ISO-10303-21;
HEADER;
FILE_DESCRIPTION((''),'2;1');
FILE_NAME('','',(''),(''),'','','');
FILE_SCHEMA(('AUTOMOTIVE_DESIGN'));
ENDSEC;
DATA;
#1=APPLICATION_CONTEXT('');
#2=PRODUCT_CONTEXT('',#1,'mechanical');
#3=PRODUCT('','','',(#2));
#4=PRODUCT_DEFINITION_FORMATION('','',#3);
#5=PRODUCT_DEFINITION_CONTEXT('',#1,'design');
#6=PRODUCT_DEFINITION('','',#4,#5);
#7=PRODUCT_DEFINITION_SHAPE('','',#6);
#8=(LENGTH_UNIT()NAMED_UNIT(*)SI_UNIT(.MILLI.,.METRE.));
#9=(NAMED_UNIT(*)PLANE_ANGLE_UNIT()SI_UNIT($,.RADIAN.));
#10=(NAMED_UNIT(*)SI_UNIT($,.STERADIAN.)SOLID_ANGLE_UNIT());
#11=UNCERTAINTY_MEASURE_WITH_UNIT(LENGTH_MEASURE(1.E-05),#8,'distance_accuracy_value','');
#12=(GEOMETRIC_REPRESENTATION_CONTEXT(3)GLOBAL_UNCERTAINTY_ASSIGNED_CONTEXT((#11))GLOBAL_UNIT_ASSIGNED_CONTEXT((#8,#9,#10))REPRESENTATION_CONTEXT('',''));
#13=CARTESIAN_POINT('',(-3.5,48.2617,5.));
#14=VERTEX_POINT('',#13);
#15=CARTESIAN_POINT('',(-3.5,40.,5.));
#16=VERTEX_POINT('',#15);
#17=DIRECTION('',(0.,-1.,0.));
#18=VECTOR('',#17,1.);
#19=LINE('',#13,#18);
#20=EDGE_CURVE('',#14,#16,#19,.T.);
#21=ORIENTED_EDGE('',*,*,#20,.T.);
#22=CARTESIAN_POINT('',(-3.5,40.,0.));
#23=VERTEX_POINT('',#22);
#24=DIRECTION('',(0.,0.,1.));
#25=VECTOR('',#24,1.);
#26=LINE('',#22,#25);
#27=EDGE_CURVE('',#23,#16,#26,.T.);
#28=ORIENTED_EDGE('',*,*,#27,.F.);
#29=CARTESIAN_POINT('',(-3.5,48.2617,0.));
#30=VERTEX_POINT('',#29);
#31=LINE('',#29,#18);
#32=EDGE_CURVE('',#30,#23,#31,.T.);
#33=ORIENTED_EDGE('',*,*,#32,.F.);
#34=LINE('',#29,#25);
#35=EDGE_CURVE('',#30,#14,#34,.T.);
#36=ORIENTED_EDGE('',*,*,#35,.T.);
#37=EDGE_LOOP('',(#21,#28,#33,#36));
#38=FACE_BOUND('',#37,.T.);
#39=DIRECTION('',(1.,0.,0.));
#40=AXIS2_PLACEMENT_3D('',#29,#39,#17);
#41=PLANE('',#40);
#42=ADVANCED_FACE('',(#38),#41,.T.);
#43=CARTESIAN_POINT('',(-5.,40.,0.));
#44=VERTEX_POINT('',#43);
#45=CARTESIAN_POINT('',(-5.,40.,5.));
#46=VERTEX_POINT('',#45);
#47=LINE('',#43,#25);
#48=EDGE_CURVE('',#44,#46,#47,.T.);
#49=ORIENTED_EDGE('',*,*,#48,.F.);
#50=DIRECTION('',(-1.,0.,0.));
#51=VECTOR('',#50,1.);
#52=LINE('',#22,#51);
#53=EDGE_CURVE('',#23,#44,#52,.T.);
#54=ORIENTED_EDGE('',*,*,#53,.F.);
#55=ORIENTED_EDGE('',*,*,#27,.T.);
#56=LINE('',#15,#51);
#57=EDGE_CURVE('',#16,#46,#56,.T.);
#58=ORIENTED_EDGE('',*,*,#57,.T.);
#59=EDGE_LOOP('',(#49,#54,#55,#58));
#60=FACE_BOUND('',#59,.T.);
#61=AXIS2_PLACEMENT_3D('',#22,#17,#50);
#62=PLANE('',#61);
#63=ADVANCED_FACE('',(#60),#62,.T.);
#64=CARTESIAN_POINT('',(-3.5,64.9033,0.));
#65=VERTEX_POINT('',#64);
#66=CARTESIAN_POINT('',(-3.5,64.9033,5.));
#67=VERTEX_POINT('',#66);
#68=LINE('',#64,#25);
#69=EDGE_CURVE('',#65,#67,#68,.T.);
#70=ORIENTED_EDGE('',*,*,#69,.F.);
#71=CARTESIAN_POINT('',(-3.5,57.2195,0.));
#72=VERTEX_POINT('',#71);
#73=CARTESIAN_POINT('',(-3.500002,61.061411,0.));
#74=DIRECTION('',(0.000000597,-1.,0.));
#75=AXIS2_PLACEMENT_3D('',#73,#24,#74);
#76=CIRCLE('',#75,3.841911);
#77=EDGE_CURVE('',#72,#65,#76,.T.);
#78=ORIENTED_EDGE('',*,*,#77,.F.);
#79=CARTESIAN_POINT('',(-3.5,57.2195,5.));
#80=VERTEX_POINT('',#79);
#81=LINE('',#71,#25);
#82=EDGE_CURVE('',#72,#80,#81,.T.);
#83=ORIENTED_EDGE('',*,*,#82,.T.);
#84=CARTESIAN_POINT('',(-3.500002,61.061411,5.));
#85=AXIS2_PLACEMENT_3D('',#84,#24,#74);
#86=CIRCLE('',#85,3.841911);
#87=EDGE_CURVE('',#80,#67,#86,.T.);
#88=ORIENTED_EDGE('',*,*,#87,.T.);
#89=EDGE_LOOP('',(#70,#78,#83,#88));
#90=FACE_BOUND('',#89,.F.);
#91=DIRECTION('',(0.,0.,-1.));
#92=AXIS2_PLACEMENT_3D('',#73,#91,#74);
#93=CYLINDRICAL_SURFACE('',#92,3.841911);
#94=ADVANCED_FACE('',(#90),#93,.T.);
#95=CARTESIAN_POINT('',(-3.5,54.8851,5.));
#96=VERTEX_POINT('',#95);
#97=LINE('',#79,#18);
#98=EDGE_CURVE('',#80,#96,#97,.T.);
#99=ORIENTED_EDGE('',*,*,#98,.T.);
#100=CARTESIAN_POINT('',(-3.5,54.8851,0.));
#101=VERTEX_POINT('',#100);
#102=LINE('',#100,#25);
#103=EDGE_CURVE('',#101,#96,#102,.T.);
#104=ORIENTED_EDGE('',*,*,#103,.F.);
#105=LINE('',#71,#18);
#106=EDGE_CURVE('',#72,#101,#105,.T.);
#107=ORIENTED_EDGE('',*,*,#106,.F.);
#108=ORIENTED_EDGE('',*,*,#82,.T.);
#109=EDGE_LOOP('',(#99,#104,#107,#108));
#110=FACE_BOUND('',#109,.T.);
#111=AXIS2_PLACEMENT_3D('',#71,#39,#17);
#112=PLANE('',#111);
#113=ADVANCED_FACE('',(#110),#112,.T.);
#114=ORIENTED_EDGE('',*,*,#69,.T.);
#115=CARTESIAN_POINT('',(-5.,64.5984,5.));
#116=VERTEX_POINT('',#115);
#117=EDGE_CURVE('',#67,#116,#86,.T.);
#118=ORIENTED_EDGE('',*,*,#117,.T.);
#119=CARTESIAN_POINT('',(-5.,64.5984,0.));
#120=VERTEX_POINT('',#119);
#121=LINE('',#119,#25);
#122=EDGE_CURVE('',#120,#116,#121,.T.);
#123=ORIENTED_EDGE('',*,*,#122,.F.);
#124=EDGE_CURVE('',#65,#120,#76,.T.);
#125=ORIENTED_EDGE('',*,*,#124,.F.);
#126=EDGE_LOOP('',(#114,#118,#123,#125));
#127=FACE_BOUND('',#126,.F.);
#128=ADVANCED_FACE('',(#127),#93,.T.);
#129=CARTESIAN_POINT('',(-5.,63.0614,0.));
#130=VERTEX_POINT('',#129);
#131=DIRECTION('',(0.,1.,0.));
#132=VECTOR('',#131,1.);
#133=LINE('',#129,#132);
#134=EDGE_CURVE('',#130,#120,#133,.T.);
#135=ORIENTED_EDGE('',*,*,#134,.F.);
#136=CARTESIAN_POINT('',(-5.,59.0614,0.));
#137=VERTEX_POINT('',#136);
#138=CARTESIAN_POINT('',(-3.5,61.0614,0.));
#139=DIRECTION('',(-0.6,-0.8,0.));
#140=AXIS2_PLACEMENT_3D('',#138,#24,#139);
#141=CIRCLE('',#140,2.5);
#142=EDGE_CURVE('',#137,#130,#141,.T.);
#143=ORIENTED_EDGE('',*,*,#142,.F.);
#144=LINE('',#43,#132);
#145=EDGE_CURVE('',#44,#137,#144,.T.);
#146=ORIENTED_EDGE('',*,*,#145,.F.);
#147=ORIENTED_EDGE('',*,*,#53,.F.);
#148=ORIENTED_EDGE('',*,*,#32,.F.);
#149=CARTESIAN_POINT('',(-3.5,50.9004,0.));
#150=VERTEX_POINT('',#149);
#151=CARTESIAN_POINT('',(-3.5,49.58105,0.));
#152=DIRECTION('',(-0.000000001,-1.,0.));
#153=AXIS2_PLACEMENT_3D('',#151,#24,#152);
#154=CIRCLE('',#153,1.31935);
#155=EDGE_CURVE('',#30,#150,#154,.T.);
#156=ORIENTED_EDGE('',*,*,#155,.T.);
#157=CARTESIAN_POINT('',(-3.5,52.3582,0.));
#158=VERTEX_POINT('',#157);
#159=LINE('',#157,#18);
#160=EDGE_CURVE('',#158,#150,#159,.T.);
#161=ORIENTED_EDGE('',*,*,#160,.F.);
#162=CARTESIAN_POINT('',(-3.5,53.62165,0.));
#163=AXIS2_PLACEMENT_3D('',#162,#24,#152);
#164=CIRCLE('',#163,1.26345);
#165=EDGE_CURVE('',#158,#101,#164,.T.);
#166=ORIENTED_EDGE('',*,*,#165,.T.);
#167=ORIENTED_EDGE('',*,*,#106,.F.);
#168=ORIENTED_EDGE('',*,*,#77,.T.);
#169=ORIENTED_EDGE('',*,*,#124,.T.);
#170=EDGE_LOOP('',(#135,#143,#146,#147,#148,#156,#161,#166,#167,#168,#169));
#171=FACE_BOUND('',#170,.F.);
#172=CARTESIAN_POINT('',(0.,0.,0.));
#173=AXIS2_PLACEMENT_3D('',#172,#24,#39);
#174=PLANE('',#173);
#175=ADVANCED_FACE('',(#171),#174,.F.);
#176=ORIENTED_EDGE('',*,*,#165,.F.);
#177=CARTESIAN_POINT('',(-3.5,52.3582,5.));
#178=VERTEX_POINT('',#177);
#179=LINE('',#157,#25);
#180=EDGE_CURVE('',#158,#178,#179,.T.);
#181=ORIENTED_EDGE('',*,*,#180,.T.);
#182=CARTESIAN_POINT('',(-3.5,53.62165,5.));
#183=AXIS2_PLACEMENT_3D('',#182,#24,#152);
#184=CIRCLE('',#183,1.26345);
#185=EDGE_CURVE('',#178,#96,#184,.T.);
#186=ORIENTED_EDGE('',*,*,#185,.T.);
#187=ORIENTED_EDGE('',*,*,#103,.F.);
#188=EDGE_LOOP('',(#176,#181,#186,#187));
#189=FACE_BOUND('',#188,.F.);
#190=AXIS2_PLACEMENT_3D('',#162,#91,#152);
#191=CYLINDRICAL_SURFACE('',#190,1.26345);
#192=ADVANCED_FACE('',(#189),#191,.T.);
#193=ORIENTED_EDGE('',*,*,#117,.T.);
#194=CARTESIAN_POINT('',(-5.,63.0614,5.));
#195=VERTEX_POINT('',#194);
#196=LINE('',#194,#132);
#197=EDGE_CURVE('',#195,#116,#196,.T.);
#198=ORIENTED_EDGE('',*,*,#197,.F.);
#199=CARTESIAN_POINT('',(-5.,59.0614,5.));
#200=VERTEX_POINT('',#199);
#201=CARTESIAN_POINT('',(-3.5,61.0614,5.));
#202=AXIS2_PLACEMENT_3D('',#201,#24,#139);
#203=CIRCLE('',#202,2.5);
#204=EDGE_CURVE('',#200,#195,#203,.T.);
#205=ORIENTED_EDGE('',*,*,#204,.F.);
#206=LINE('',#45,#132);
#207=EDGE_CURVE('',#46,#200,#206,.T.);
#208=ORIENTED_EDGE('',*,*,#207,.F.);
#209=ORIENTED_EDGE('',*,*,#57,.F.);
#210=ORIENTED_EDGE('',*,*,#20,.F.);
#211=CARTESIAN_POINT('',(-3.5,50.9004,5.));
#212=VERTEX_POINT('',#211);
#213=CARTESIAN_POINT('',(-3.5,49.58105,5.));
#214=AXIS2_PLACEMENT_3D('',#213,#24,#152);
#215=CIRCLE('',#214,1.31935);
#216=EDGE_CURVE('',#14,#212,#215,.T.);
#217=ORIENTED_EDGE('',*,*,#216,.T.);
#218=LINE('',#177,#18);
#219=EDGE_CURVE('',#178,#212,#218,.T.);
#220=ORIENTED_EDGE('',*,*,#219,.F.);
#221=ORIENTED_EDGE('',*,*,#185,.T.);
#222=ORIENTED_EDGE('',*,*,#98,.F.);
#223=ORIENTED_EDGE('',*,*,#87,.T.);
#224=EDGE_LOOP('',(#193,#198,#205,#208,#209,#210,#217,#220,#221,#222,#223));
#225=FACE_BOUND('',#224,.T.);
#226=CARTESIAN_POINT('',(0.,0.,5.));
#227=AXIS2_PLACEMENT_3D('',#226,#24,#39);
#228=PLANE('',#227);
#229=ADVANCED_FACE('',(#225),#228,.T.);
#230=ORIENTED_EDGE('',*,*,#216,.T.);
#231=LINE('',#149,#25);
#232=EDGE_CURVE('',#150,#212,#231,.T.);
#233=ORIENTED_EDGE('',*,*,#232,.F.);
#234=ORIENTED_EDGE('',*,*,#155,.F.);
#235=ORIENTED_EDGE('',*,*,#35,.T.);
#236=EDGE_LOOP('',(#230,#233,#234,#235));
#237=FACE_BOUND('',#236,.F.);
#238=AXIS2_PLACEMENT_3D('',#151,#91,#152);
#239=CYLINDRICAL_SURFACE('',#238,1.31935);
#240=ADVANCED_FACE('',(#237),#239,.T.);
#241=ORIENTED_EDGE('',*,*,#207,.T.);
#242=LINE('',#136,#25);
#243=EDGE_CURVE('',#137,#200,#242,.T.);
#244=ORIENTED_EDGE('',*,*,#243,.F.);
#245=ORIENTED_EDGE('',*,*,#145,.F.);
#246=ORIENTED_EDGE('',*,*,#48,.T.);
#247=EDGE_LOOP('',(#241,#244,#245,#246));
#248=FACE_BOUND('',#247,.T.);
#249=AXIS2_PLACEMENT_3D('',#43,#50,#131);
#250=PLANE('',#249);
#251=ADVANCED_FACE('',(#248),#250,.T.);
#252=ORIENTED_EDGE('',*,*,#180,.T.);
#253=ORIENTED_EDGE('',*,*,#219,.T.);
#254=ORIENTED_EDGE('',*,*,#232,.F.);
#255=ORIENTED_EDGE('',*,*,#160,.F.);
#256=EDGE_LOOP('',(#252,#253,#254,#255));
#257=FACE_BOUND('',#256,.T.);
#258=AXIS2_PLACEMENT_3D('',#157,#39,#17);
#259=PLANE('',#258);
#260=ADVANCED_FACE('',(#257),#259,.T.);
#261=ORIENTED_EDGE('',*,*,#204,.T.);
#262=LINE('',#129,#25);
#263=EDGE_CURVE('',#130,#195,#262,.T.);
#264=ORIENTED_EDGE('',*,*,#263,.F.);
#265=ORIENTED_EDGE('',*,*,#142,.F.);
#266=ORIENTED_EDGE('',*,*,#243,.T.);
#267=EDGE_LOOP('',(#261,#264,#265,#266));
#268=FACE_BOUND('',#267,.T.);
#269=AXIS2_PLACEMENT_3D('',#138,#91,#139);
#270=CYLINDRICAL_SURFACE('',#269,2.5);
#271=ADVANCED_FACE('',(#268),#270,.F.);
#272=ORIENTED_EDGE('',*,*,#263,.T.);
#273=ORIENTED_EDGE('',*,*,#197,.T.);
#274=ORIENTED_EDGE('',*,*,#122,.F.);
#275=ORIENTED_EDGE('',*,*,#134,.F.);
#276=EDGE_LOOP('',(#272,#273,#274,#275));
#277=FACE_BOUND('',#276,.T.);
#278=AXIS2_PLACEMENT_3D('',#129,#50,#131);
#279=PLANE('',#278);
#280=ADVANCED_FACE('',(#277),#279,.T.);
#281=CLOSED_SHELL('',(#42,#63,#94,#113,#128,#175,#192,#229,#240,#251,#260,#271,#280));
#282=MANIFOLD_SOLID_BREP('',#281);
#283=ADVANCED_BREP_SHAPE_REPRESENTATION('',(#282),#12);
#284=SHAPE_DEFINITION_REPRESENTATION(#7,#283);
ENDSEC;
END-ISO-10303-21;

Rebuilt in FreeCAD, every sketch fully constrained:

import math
import FreeCAD as App
import Part
import Sketcher

V = App.Vector
Q = App.Units.Quantity

doc = App.newDocument("Part")
params = doc.addObject("Spreadsheet::Sheet", "Params")
for row, (alias, value) in enumerate([
    ("sketch1_radius", "2.5 mm"),
    ("sketch1_width", "1.5 mm"),
    ("pad1_length", "5 mm"),
], start=1):
    params.set(f"A{row}", alias)
    params.set(f"B{row}", "=" + value)
    params.setAlias(f"B{row}", alias)

body = doc.addObject("PartDesign::Body", "Body")

# Sketch on XY plane
sketch1 = body.newObject("Sketcher::SketchObject", "Sketch")
sketch1.AttachmentSupport = (doc.getObject("XY_Plane"), [""])
sketch1.MapMode = "FlatFace"
sketch1.addGeometry(Part.LineSegment(V(-5, 40, 0), V(-3.5, 40, 0)), False)
sketch1.addGeometry(Part.LineSegment(V(-3.5, 40, 0), V(-3.5, 48.3, 0)), False)
sketch1.addGeometry(Part.ArcOfCircle(Part.Circle(V(-3.5, 49.6, 0), V(0, 0, 1), 1.3), math.radians(-90), math.radians(90)), False)
sketch1.addGeometry(Part.LineSegment(V(-3.5, 50.9, 0), V(-3.5, 52.4, 0)), False)
sketch1.addGeometry(Part.ArcOfCircle(Part.Circle(V(-3.5, 53.6, 0), V(0, 0, 1), 1.3), math.radians(-90), math.radians(90)), False)
sketch1.addGeometry(Part.LineSegment(V(-3.5, 54.9, 0), V(-3.5, 57.2, 0)), False)
sketch1.addGeometry(Part.ArcOfCircle(Part.Circle(V(-3.5, 61.1, 0), V(0, 0, 1), 3.8), math.radians(-90), math.radians(113)), False)
sketch1.addGeometry(Part.LineSegment(V(-5, 64.6, 0), V(-5, 63.1, 0)), False)
sketch1.addGeometry(Part.ArcOfCircle(Part.Circle(V(-3.5, 61.1, 0), V(0, 0, 1), 2.5), math.radians(-127), math.radians(127)), False)
sketch1.addGeometry(Part.LineSegment(V(-5, 59.1, 0), V(-5, 40, 0)), False)
sketch1.addConstraint(Sketcher.Constraint("Coincident", 0, 2, 1, 1))
sketch1.addConstraint(Sketcher.Constraint("Coincident", 1, 2, 2, 1))
sketch1.addConstraint(Sketcher.Constraint("Coincident", 2, 2, 3, 1))
sketch1.addConstraint(Sketcher.Constraint("Coincident", 3, 2, 4, 1))
sketch1.addConstraint(Sketcher.Constraint("Coincident", 4, 2, 5, 1))
sketch1.addConstraint(Sketcher.Constraint("Coincident", 5, 2, 6, 1))
sketch1.addConstraint(Sketcher.Constraint("Coincident", 6, 2, 7, 1))
sketch1.addConstraint(Sketcher.Constraint("Coincident", 7, 2, 8, 2))
sketch1.addConstraint(Sketcher.Constraint("Coincident", 8, 1, 9, 1))
sketch1.addConstraint(Sketcher.Constraint("Coincident", 9, 2, 0, 1))
sketch1.addConstraint(Sketcher.Constraint("Horizontal", 0))
sketch1.addConstraint(Sketcher.Constraint("Vertical", 1))
sketch1.addConstraint(Sketcher.Constraint("Vertical", 3))
sketch1.addConstraint(Sketcher.Constraint("Vertical", 5))
sketch1.addConstraint(Sketcher.Constraint("Vertical", 7))
sketch1.addConstraint(Sketcher.Constraint("Vertical", 9))
sketch1.addConstraint(Sketcher.Constraint("Coincident", 8, 3, 6, 3))
sketch1.addConstraint(Sketcher.Constraint("Vertical", 2, 3, 4, 3))
sketch1.addConstraint(Sketcher.Constraint("Vertical", 4, 3, 6, 3))
sketch1.addConstraint(Sketcher.Constraint("Vertical", 8, 3, 0, 2))
sketch1.addConstraint(Sketcher.Constraint("Vertical", 1, 2, 2, 2))
sketch1.addConstraint(Sketcher.Constraint("Vertical", 3, 2, 4, 2))
sketch1.addConstraint(Sketcher.Constraint("Vertical", 7, 2, 8, 1))
sketch1.addConstraint(Sketcher.Constraint("Radius", 8, Q("2.5 mm")))
sketch1.addConstraint(Sketcher.Constraint("DistanceX", 6, 2, -1, 1, Q("5 mm")))
sketch1.addConstraint(Sketcher.Constraint("DistanceX", 0, 1, 0, 2, Q("1.5 mm")))
sketch1.addConstraint(Sketcher.Constraint("DistanceY", -1, 1, 0, 2, Q("40 mm")))
sketch1.addConstraint(Sketcher.Constraint("Radius", 6, Q("3.842 mm")))
sketch1.addConstraint(Sketcher.Constraint("Radius", 2, Q("1.3194 mm")))
sketch1.addConstraint(Sketcher.Constraint("Radius", 4, Q("1.2634 mm")))
sketch1.addConstraint(Sketcher.Constraint("DistanceY", 1, 2, 4, 3, Q("5.36 mm")))
sketch1.addConstraint(Sketcher.Constraint("DistanceY", 1, 1, 1, 2, Q("8.2617 mm")))
sketch1.addConstraint(Sketcher.Constraint("DistanceY", 5, 1, 5, 2, Q("2.3344 mm")))
sketch1.setExpression("Constraints[23]", "Params.sketch1_radius")
sketch1.setExpression("Constraints[25]", "Params.sketch1_width")
pad1 = body.newObject("PartDesign::Pad", "Pad")
pad1.Profile = sketch1
pad1.setExpression("Length", "Params.pad1_length")

doc.recompute()
